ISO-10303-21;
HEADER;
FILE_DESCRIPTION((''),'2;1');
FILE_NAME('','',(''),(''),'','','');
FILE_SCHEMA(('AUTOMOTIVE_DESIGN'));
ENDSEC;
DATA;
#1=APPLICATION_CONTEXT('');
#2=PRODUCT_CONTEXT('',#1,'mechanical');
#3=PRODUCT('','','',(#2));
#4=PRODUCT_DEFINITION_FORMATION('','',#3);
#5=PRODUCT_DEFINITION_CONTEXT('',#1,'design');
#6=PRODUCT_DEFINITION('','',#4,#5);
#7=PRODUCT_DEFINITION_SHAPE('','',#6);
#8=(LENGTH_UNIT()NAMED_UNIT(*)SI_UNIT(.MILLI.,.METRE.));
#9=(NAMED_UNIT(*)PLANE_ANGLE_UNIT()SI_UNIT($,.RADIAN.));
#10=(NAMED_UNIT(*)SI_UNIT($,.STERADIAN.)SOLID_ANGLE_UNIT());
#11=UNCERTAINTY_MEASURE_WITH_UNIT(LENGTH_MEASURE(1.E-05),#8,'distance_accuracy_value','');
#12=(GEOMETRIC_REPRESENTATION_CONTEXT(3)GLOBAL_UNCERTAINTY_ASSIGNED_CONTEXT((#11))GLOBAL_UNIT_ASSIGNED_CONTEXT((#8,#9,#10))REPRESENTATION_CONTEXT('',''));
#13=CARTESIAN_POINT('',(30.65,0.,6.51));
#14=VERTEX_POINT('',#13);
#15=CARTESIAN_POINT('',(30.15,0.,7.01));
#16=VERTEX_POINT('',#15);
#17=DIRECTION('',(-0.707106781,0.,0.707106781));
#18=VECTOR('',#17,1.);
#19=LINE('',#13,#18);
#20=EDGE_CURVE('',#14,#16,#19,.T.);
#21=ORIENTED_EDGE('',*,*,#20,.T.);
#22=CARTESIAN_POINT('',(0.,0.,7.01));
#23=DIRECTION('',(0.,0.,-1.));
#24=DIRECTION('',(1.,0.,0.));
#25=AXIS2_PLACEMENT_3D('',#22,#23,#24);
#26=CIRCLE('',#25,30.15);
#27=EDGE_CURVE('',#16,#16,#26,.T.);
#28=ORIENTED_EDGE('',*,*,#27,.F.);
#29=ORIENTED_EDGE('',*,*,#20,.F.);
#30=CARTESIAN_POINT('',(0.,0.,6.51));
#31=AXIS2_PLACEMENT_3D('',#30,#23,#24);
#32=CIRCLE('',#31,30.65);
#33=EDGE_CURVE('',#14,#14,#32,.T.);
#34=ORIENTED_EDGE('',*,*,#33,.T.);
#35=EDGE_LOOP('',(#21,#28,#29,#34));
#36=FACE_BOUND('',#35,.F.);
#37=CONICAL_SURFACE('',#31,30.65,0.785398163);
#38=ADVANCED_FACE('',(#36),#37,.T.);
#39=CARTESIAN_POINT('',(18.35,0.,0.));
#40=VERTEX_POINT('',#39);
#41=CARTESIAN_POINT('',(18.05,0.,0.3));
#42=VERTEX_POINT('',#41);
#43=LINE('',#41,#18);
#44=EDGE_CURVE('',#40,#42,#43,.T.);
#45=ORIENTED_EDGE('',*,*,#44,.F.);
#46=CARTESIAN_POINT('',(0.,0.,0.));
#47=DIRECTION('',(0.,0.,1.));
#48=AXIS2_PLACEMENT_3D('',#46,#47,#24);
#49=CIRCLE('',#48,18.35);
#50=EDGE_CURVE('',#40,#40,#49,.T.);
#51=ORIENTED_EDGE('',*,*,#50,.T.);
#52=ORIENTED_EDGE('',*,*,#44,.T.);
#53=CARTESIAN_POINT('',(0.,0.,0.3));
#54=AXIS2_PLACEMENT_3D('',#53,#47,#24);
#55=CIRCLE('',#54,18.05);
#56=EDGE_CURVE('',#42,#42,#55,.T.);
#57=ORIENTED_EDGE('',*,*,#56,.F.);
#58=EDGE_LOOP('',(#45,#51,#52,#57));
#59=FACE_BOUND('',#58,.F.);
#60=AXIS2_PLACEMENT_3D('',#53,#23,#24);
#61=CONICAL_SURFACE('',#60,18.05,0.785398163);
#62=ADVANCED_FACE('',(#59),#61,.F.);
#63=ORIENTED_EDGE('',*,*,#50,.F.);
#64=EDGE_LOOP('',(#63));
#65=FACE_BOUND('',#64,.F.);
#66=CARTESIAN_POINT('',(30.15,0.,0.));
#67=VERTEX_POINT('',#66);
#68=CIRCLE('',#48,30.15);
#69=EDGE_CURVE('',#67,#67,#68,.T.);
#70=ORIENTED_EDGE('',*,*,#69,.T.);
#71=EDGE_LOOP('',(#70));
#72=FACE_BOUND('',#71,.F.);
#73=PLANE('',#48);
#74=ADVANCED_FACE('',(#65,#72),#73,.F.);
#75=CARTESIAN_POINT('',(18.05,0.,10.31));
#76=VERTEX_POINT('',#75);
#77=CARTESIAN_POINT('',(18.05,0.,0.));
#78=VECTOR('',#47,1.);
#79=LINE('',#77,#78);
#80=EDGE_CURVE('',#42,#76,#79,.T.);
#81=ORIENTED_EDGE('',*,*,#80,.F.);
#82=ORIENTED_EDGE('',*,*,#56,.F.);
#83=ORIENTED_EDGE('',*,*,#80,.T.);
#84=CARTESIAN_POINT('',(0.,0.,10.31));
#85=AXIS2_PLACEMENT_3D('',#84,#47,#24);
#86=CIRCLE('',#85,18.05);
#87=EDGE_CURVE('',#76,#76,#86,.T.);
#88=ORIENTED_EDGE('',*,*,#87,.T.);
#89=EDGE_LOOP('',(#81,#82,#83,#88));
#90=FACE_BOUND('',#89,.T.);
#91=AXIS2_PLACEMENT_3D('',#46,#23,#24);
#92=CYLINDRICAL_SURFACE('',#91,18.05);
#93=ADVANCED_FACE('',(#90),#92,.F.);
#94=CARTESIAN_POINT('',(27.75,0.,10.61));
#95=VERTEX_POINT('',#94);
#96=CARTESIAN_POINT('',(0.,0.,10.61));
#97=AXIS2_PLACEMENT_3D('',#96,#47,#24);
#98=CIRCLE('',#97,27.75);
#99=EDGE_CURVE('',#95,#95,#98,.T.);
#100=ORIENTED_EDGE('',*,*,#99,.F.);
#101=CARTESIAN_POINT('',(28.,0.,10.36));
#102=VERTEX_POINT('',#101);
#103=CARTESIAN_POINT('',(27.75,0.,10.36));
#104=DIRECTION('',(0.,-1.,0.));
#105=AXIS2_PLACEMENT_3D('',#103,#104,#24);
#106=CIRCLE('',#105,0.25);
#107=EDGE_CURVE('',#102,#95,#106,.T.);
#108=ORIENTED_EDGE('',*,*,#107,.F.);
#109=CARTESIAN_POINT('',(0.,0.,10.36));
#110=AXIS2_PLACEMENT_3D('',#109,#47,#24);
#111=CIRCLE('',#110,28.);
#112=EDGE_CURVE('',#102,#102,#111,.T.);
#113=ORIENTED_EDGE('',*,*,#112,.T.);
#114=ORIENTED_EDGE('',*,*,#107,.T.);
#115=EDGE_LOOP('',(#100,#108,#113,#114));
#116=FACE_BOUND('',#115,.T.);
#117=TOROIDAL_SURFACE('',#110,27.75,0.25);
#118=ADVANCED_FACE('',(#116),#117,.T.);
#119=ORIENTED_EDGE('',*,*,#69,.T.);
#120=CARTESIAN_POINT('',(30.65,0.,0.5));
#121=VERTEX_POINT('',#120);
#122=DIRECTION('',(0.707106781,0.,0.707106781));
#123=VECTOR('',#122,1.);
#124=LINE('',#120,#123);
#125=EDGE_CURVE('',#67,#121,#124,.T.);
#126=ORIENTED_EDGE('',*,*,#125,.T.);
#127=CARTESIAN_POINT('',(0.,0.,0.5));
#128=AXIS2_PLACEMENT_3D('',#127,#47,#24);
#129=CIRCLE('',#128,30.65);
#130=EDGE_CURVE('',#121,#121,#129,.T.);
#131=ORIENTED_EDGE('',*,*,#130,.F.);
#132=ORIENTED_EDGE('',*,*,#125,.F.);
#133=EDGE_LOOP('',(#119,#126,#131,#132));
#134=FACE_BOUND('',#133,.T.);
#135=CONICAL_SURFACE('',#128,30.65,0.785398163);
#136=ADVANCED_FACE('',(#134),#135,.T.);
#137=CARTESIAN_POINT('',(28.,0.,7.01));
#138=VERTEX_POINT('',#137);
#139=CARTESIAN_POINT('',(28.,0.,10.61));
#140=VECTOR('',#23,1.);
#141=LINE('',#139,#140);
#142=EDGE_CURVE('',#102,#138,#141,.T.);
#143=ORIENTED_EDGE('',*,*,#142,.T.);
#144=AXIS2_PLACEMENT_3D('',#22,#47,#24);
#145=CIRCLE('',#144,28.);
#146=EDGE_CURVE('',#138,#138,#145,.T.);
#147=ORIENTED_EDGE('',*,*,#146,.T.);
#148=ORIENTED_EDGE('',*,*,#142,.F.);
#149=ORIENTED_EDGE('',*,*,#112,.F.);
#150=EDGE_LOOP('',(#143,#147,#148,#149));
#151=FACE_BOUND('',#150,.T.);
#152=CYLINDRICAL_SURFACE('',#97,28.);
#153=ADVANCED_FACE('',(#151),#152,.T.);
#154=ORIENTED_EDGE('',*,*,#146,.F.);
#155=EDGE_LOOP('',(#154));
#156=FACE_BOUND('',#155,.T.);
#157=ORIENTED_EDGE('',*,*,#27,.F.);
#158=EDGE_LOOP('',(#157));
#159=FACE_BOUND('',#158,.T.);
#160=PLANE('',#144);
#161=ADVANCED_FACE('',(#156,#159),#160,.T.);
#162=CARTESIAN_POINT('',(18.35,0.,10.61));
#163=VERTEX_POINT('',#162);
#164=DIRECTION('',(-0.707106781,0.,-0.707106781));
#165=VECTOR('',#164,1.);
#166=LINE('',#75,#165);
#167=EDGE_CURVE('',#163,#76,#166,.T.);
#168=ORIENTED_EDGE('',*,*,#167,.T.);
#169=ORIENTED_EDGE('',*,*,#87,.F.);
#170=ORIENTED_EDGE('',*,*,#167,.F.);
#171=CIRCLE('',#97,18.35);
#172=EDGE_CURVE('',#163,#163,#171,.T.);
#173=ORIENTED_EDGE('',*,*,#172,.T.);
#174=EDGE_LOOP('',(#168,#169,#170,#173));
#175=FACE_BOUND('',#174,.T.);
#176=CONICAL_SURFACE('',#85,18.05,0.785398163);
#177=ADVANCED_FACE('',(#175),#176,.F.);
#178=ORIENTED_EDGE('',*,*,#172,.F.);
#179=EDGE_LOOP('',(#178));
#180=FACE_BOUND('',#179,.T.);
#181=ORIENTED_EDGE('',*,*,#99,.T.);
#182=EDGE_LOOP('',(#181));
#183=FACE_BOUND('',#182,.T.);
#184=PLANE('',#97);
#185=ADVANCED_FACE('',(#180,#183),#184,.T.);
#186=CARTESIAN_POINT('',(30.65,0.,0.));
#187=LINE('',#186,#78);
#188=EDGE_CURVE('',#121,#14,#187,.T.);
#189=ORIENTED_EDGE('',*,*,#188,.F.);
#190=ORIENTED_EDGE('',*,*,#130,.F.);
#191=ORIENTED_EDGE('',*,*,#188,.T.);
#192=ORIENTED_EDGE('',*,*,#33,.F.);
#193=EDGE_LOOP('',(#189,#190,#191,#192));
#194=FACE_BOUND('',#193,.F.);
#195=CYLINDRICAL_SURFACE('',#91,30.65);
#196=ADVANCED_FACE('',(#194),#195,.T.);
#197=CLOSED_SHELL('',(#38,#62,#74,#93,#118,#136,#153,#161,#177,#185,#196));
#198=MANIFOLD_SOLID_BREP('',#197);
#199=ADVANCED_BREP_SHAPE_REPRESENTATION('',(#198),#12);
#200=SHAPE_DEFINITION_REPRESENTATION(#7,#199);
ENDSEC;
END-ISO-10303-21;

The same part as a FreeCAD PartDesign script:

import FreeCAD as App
import Part
import Sketcher

V = App.Vector


def edges_at(feature, points):
    """Names of the edges that pass closest to the given points."""
    edges = feature.Shape.Edges
    near = lambda p: min(range(len(edges)), key=lambda i: edges[i].distToShape(Part.Vertex(*p))[0])
    return sorted({f"Edge{near(p) + 1}" for p in points})

doc = App.newDocument("Part")
body = doc.addObject("PartDesign::Body", "Body")

# Sketch on XY plane
sketch1 = doc.addObject("Sketcher::SketchObject", "Sketch")
body.addObject(sketch1)
sketch1.AttachmentSupport = (doc.XY_Plane, [""])
sketch1.MapMode = "FlatFace"
sketch1.addGeometry([
    Part.Circle(V(0, 0, 0), V(0, 0, 1), 31),
    Part.Circle(V(0, 0, 0), V(0, 0, 1), 18),
], False)
sketch1.addConstraint([
    Sketcher.Constraint("Coincident", 0, 3, -1, 1),
    Sketcher.Constraint("Coincident", 1, 3, -1, 1),
    Sketcher.Constraint("Diameter", 0, 61.3),
    Sketcher.Constraint("Diameter", 1, 36.1),
])
pad1 = doc.addObject("PartDesign::Pad", "Pad")
body.addObject(pad1)
pad1.Profile = sketch1
pad1.Length = 10.61

# Sketch on XY plane
sketch2 = doc.addObject("Sketcher::SketchObject", "Sketch001")
body.addObject(sketch2)
sketch2.AttachmentSupport = (doc.XY_Plane, [""])
sketch2.MapMode = "FlatFace"
sketch2.AttachmentOffset = App.Placement(V(0, 0, 10.61), App.Rotation())
sketch2.addGeometry([
    Part.Circle(V(0, 0, 0), V(0, 0, 1), 40),
    Part.Circle(V(0, 0, 0), V(0, 0, 1), 28),
], False)
sketch2.addConstraint([
    Sketcher.Constraint("Coincident", 0, 3, -1, 1),
    Sketcher.Constraint("Coincident", 1, 3, -1, 1),
    Sketcher.Constraint("Diameter", 1, 56.0),
    Sketcher.Constraint("Diameter", 0, 79.3012),
])
pocket1 = doc.addObject("PartDesign::Pocket", "Pocket")
body.addObject(pocket1)
pocket1.Profile = sketch2
pocket1.Length = 3.6
doc.recompute()

chamfer = doc.addObject("PartDesign::Chamfer", "Chamfer")
body.addObject(chamfer)
chamfer.Base = (pocket1, edges_at(pocket1, [(-18.05, 0, 0)]))
chamfer.Size = 0.3
doc.recompute()

chamfer2 = doc.addObject("PartDesign::Chamfer", "Chamfer001")
body.addObject(chamfer2)
chamfer2.Base = (chamfer, edges_at(chamfer, [(-30.65, 0, 0)]))
chamfer2.Size = 0.5
doc.recompute()

chamfer3 = doc.addObject("PartDesign::Chamfer", "Chamfer002")
body.addObject(chamfer3)
chamfer3.Base = (chamfer2, edges_at(chamfer2, [(-30.65, 0, 7.01)]))
chamfer3.Size = 0.5
doc.recompute()

fillet = doc.addObject("PartDesign::Fillet", "Fillet")
body.addObject(fillet)
fillet.Base = (chamfer3, edges_at(chamfer3, [(-28, 0, 10.61)]))
fillet.Radius = 0.25
doc.recompute()

chamfer4 = doc.addObject("PartDesign::Chamfer", "Chamfer003")
body.addObject(chamfer4)
chamfer4.Base = (fillet, edges_at(fillet, [(-18.05, 0, 10.61)]))
chamfer4.Size = 0.3

doc.recompute()
